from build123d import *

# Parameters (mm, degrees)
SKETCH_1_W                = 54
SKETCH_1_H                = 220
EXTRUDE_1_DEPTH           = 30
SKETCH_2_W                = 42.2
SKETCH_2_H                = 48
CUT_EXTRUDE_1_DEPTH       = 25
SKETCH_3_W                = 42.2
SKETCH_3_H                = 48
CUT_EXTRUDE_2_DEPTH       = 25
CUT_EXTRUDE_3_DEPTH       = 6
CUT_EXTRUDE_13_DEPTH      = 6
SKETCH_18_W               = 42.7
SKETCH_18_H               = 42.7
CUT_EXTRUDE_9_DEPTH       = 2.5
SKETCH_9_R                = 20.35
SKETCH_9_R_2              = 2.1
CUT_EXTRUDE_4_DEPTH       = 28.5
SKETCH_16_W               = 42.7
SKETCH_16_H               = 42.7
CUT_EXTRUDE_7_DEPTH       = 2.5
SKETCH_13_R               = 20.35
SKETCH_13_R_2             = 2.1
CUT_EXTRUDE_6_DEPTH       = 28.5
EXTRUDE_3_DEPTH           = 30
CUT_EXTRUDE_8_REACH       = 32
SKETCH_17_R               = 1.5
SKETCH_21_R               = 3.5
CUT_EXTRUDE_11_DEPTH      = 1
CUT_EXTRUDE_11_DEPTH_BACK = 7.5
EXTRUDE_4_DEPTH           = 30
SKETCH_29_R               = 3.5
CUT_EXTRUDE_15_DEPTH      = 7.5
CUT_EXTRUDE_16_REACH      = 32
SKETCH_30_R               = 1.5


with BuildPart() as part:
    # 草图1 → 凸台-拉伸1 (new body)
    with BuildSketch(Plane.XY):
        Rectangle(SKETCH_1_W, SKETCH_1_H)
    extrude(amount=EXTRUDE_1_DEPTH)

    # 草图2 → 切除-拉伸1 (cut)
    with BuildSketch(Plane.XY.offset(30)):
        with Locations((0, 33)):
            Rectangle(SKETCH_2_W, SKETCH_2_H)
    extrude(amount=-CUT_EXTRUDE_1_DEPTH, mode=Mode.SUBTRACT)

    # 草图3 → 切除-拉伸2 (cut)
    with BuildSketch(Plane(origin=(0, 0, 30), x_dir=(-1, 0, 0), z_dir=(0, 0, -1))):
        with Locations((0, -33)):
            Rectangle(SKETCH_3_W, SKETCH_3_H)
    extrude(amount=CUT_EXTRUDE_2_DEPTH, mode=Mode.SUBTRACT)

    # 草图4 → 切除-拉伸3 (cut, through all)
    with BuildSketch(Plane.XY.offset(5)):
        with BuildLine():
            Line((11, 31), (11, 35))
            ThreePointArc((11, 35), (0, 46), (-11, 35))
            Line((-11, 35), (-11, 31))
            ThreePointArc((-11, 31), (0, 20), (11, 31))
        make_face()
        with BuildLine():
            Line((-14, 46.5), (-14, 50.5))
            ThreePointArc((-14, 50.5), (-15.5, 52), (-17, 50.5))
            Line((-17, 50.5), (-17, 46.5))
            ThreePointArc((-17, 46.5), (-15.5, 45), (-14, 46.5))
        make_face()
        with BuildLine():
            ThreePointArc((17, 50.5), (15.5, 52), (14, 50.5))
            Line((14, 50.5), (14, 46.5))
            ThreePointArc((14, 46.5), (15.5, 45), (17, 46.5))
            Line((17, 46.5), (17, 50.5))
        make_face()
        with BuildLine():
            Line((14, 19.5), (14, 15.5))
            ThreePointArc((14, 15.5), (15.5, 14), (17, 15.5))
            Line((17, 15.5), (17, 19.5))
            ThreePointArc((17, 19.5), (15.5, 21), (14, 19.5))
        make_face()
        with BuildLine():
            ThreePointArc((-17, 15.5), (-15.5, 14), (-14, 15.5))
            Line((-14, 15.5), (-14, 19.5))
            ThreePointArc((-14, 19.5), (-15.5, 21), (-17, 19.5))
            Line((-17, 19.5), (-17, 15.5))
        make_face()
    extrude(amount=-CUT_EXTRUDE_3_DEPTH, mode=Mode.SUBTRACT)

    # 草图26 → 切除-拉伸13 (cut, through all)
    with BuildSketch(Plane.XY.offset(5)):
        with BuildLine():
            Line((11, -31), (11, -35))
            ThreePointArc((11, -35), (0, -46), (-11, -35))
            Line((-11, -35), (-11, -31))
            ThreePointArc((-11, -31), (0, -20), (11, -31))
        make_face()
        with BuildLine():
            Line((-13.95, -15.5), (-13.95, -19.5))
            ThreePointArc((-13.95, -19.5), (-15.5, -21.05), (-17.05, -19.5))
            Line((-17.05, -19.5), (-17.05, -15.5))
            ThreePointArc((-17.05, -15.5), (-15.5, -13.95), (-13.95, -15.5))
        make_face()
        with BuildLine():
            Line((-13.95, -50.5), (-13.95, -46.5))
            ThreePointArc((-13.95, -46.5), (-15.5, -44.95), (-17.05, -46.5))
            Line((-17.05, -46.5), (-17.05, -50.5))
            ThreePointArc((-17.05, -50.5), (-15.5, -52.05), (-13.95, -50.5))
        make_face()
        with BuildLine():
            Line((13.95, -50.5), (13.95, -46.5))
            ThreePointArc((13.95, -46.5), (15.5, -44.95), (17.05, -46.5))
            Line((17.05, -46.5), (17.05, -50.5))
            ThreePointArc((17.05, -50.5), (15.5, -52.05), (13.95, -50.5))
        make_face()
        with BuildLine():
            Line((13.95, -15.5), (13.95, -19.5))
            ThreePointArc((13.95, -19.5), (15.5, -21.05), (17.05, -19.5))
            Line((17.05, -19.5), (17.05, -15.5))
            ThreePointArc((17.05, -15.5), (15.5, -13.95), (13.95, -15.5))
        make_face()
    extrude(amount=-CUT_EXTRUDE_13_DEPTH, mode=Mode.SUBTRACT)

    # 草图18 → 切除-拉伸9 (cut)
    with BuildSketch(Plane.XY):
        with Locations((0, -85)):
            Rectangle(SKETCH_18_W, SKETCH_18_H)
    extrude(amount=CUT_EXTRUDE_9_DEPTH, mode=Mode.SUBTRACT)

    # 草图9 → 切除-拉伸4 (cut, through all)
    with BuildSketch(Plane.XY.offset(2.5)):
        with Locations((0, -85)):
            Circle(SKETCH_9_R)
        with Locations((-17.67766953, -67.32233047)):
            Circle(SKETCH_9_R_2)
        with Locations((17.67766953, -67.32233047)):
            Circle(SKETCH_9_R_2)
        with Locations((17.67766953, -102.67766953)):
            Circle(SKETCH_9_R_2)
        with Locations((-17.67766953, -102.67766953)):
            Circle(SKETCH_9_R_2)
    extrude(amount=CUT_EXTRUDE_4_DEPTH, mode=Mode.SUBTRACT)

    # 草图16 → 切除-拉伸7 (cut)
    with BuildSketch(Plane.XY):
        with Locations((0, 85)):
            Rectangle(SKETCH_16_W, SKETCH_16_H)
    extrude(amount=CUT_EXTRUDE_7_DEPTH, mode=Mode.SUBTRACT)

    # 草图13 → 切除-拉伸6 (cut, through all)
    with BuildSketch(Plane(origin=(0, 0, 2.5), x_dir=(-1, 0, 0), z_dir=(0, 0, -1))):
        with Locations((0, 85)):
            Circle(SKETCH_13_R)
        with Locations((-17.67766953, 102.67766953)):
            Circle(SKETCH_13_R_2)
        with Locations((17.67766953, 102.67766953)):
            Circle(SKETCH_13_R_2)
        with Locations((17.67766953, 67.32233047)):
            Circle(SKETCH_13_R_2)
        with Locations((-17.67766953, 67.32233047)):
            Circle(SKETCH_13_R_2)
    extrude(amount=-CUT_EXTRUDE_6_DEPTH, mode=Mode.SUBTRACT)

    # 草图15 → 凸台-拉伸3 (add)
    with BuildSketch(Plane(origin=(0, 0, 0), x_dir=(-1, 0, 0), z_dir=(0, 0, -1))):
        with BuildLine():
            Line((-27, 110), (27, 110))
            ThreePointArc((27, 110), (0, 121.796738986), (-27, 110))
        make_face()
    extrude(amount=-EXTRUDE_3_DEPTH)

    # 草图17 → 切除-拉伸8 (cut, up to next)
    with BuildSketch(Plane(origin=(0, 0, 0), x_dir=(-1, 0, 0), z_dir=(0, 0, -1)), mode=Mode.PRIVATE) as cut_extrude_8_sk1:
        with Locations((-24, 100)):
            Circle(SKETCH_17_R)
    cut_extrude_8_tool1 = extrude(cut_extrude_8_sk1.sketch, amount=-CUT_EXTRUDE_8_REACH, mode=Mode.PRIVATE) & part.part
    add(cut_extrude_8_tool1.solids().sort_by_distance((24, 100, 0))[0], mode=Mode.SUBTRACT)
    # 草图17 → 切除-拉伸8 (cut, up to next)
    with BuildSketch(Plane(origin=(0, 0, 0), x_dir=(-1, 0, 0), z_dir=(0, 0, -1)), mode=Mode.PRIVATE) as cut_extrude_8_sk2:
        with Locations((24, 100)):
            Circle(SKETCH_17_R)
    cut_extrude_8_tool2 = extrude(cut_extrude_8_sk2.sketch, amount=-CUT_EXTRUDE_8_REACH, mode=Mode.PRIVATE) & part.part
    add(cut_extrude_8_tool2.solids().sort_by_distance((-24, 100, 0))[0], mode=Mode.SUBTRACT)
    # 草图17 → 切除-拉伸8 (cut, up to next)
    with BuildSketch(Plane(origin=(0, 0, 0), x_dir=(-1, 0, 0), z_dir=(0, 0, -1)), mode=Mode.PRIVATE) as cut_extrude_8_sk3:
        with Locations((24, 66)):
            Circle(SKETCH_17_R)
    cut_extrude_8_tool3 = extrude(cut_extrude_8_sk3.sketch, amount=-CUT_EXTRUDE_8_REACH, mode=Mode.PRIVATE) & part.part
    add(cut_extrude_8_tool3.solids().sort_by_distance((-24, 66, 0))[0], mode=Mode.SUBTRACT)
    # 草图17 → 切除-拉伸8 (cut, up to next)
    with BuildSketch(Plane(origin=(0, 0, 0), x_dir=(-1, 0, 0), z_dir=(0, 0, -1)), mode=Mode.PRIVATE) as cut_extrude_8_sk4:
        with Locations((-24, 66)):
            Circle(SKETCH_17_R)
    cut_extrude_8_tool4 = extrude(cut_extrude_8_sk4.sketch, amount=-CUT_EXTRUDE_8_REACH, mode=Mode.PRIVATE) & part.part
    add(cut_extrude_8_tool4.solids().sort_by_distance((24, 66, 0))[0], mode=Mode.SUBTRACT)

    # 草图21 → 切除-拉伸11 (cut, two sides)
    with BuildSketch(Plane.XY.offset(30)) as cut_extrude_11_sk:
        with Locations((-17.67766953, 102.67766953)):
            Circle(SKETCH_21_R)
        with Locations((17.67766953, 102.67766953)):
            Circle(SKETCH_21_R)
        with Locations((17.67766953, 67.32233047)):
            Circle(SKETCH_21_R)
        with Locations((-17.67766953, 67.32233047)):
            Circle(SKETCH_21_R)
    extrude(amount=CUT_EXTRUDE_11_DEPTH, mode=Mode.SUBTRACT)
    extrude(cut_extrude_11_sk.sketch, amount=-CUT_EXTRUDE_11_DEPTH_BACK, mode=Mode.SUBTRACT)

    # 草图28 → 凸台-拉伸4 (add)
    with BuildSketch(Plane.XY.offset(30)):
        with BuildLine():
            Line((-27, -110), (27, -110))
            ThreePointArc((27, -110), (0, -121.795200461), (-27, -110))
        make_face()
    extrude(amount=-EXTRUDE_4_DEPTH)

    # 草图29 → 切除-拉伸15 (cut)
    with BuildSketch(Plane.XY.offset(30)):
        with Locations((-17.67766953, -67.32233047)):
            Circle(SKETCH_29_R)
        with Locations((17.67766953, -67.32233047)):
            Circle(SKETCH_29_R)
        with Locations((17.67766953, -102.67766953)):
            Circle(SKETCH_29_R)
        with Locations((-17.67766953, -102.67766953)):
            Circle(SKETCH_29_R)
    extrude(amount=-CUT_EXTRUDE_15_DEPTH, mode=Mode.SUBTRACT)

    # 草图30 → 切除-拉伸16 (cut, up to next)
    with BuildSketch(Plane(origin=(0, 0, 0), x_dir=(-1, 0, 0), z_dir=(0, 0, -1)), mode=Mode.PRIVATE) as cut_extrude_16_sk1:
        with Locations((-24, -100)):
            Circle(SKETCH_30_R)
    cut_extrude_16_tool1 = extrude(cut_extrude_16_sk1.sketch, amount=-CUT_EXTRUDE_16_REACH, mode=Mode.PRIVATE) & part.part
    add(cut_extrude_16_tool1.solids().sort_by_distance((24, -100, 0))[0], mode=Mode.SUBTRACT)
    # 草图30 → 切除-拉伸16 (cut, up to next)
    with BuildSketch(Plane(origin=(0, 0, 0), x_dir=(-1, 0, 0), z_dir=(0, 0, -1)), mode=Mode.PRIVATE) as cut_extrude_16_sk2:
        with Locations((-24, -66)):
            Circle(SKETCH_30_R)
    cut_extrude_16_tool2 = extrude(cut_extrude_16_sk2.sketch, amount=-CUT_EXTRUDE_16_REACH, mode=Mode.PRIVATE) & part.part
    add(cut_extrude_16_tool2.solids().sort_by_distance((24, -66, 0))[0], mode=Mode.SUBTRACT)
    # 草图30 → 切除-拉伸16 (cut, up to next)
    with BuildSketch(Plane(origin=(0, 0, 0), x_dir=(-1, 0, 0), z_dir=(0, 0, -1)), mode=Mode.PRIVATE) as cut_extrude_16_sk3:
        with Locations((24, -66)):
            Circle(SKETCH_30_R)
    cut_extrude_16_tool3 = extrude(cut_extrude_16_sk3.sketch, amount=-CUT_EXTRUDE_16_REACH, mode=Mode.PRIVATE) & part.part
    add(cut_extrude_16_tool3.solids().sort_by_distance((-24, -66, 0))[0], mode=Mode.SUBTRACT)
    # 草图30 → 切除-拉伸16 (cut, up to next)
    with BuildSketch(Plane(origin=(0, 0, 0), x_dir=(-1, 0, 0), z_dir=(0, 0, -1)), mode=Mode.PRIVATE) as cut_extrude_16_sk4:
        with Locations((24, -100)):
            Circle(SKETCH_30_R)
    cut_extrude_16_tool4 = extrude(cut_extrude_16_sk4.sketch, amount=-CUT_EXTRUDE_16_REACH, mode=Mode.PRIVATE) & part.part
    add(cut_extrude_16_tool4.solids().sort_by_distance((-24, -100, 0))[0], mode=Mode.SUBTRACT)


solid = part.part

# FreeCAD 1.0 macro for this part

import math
import FreeCAD as App
import Part
import Sketcher
Q = App.Units.Quantity


def add_polygon(sketch, points):
    """Adds a closed chain of lines whose ends are joined by coincident constraints."""
    first, n = sketch.GeometryCount, len(points)
    for a, b in zip(points, points[1:] + points[:1]):
        sketch.addGeometry(Part.LineSegment(App.Vector(*a, 0), App.Vector(*b, 0)), False)
    for i in range(n):
        sketch.addConstraint(Sketcher.Constraint("Coincident", first + i, 2, first + (i + 1) % n, 1))

doc = App.newDocument("Part")
params = doc.addObject("Spreadsheet::Sheet", "Params")
for row, (alias, value) in enumerate([
    ("sketch1_width", "54 mm"),
    ("sketch1_height", "220 mm"),
    ("pad1_length", "30 mm"),
    ("sketch2_height", "48 mm"),
    ("sketch2_width", "42.2 mm"),
    ("pocket1_length", "25 mm"),
    ("sketch3_height", "48 mm"),
    ("sketch3_width", "42.2 mm"),
    ("pocket2_length", "25 mm"),
    ("sketch4_radius", "11 mm"),
    ("sketch4_radius2", "1.5 mm"),
    ("sketch4_height", "4 mm"),
    ("sketch5_radius", "11 mm"),
    ("sketch5_height", "4 mm"),
    ("sketch5_radius2", "1.55 mm"),
    ("sketch6_width", "42.7 mm"),
    ("pocket5_length", "2.5 mm"),
    ("sketch7_diameter", "40.7 mm"),
    ("sketch7_diameter2", "4.2 mm"),
    ("sketch8_width", "42.7 mm"),
    ("pocket7_length", "2.5 mm"),
    ("sketch9_diameter", "40.7 mm"),
    ("sketch9_diameter2", "4.2 mm"),
    ("sketch10_width", "54 mm"),
    ("pad2_length", "30 mm"),
    ("sketch11_diameter", "3 mm"),
    ("sketch12_diameter", "3 mm"),
    ("sketch13_diameter", "3 mm"),
    ("sketch14_diameter", "3 mm"),
    ("sketch15_diameter", "7 mm"),
    ("pocket13_length", "1 mm"),
    ("pocket13_length2", "7.5 mm"),
    ("sketch16_radius", "36.8 mm"),
    ("sketch16_width", "54 mm"),
    ("pad3_length", "30 mm"),
    ("sketch17_diameter", "7 mm"),
    ("pocket14_length", "7.5 mm"),
    ("sketch18_diameter", "3 mm"),
    ("sketch19_diameter", "3 mm"),
    ("sketch20_diameter", "3 mm"),
    ("sketch21_diameter", "3 mm"),
], start=1):
    params.set(f"A{row}", alias)
    params.set(f"B{row}", "=" + value)
    params.setAlias(f"B{row}", alias)

body = doc.addObject("PartDesign::Body", "Body")

sketch1 = body.newObject("Sketcher::SketchObject", "Sketch")
sketch1.AttachmentSupport = (doc.getObject("XY_Plane"), [""])
sketch1.MapMode = "FlatFace"
add_polygon(sketch1, [(-27, 110), (-27, -110), (27, -110), (27, 110)])
sketch1.addConstraint(Sketcher.Constraint("Vertical", 0))
sketch1.addConstraint(Sketcher.Constraint("Horizontal", 1))
sketch1.addConstraint(Sketcher.Constraint("Vertical", 2))
sketch1.addConstraint(Sketcher.Constraint("Horizontal", 3))
sketch1.addConstraint(Sketcher.Constraint("Symmetric", 0, 2, 2, 2, -1, 1))
sketch1.addConstraint(Sketcher.Constraint("DistanceX", 1, 1, 1, 2, Q("54 mm")))
sketch1.addConstraint(Sketcher.Constraint("DistanceY", 0, 2, 0, 1, Q("220 mm")))
sketch1.setExpression("Constraints[9]", "Params.sketch1_width")
sketch1.setExpression("Constraints[10]", "Params.sketch1_height")
pad1 = body.newObject("PartDesign::Pad", "Pad")
pad1.Profile = sketch1
pad1.setExpression("Length", "Params.pad1_length")

sketch2 = body.newObject("Sketcher::SketchObject", "Sketch001")
sketch2.AttachmentSupport = (doc.getObject("XY_Plane"), [""])
sketch2.MapMode = "FlatFace"
sketch2.AttachmentOffset = App.Placement(App.Vector(0, 0, 30), App.Rotation())
add_polygon(sketch2, [(-21, 57), (-21, 9), (21, 9), (21, 57)])
sketch2.addConstraint(Sketcher.Constraint("Vertical", 0))
sketch2.addConstraint(Sketcher.Constraint("Horizontal", 1))
sketch2.addConstraint(Sketcher.Constraint("Vertical", 2))
sketch2.addConstraint(Sketcher.Constraint("Horizontal", 3))
sketch2.addConstraint(Sketcher.Constraint("DistanceY", 0, 2, 0, 1, Q("48 mm")))
sketch2.addConstraint(Sketcher.Constraint("DistanceX", 1, 1, 1, 2, Q("42.2 mm")))
sketch2.addConstraint(Sketcher.Constraint("DistanceY", -1, 1, 0, 2, Q("9 mm")))
sketch2.addConstraint(Sketcher.Constraint("DistanceX", 0, 2, -1, 1, Q("21.1 mm")))
sketch2.setExpression("Constraints[8]", "Params.sketch2_height")
sketch2.setExpression("Constraints[9]", "Params.sketch2_width")
pocket1 = body.newObject("PartDesign::Pocket", "Pocket")
pocket1.Profile = sketch2
pocket1.setExpression("Length", "Params.pocket1_length")

sketch3 = body.newObject("Sketcher::SketchObject", "Sketch002")
sketch3.AttachmentSupport = (doc.getObject("XY_Plane"), [""])
sketch3.MapMode = "FlatFace"
sketch3.AttachmentOffset = App.Placement(App.Vector(0, 0, 30), App.Rotation())
add_polygon(sketch3, [(21, -9), (21, -57), (-21, -57), (-21, -9)])
sketch3.addConstraint(Sketcher.Constraint("Vertical", 0))
sketch3.addConstraint(Sketcher.Constraint("Horizontal", 1))
sketch3.addConstraint(Sketcher.Constraint("Vertical", 2))
sketch3.addConstraint(Sketcher.Constraint("Horizontal", 3))
sketch3.addConstraint(Sketcher.Constraint("DistanceY", 0, 2, 0, 1, Q("48 mm")))
sketch3.addConstraint(Sketcher.Constraint("DistanceX", 1, 2, 1, 1, Q("42.2 mm")))
sketch3.addConstraint(Sketcher.Constraint("DistanceY", 0, 2, -1, 1, Q("57 mm")))
sketch3.addConstraint(Sketcher.Constraint("DistanceX", -1, 1, 0, 2, Q("21.1 mm")))
sketch3.setExpression("Constraints[8]", "Params.sketch3_height")
sketch3.setExpression("Constraints[9]", "Params.sketch3_width")
pocket2 = body.newObject("PartDesign::Pocket", "Pocket001")
pocket2.Profile = sketch3
pocket2.setExpression("Length", "Params.pocket2_length")

sketch4 = body.newObject("Sketcher::SketchObject", "Sketch003")
sketch4.AttachmentSupport = (doc.getObject("XY_Plane"), [""])
sketch4.MapMode = "FlatFace"
sketch4.AttachmentOffset = App.Placement(App.Vector(0, 0, 5), App.Rotation())
sketch4.addGeometry(Part.LineSegment(App.Vector(11, 31, 0), App.Vector(11, 35, 0)), False)
sketch4.addGeometry(Part.ArcOfCircle(Part.Circle(App.Vector(0, 35, 0), App.Vector(0, 0, 1), 11), math.radians(0), math.radians(180)), False)
sketch4.addGeometry(Part.LineSegment(App.Vector(-11, 35, 0), App.Vector(-11, 31, 0)), False)
sketch4.addGeometry(Part.ArcOfCircle(Part.Circle(App.Vector(0, 31, 0), App.Vector(0, 0, 1), 11), math.radians(180), math.radians(360)), False)
sketch4.addGeometry(Part.LineSegment(App.Vector(-14, 46.5, 0), App.Vector(-14, 50.5, 0)), False)
sketch4.addGeometry(Part.ArcOfCircle(Part.Circle(App.Vector(-15.5, 50.5, 0), App.Vector(0, 0, 1), 1.5), math.radians(0), math.radians(180)), False)
sketch4.addGeometry(Part.LineSegment(App.Vector(-17, 50.5, 0), App.Vector(-17, 46.5, 0)), False)
sketch4.addGeometry(Part.ArcOfCircle(Part.Circle(App.Vector(-15.5, 46.5, 0), App.Vector(0, 0, 1), 1.5), math.radians(180), math.radians(360)), False)
sketch4.addGeometry(Part.ArcOfCircle(Part.Circle(App.Vector(15.5, 50.5, 0), App.Vector(0, 0, 1), 1.5), math.radians(0), math.radians(180)), False)
sketch4.addGeometry(Part.LineSegment(App.Vector(14, 50.5, 0), App.Vector(14, 46.5, 0)), False)
sketch4.addGeometry(Part.ArcOfCircle(Part.Circle(App.Vector(15.5, 46.5, 0), App.Vector(0, 0, 1), 1.5), math.radians(180), math.radians(360)), False)
sketch4.addGeometry(Part.LineSegment(App.Vector(17, 46.5, 0), App.Vector(17, 50.5, 0)), False)
sketch4.addGeometry(Part.LineSegment(App.Vector(14, 19.5, 0), App.Vector(14, 15.5, 0)), False)
sketch4.addGeometry(Part.ArcOfCircle(Part.Circle(App.Vector(15.5, 15.5, 0), App.Vector(0, 0, 1), 1.5), math.radians(180), math.radians(360)), False)
sketch4.addGeometry(Part.LineSegment(App.Vector(17, 15.5, 0), App.Vector(17, 19.5, 0)), False)
sketch4.addGeometry(Part.ArcOfCircle(Part.Circle(App.Vector(15.5, 19.5, 0), App.Vector(0, 0, 1), 1.5), math.radians(0), math.radians(180)), False)
sketch4.addGeometry(Part.ArcOfCircle(Part.Circle(App.Vector(-15.5, 15.5, 0), App.Vector(0, 0, 1), 1.5), math.radians(180), math.radians(360)), False)
sketch4.addGeometry(Part.LineSegment(App.Vector(-14, 15.5, 0), App.Vector(-14, 19.5, 0)), False)
sketch4.addGeometry(Part.ArcOfCircle(Part.Circle(App.Vector(-15.5, 19.5, 0), App.Vector(0, 0, 1), 1.5), math.radians(0), math.radians(180)), False)
sketch4.addGeometry(Part.LineSegment(App.Vector(-17, 19.5, 0), App.Vector(-17, 15.5, 0)), False)
sketch4.addConstraint(Sketcher.Constraint("Tangent", 0, 2, 1, 1))
sketch4.addConstraint(Sketcher.Constraint("Tangent", 1, 2, 2, 1))
sketch4.addConstraint(Sketcher.Constraint("Tangent", 2, 2, 3, 1))
sketch4.addConstraint(Sketcher.Constraint("Tangent", 3, 2, 0, 1))
sketch4.addConstraint(Sketcher.Constraint("Tangent", 4, 2, 5, 1))
sketch4.addConstraint(Sketcher.Constraint("Tangent", 5, 2, 6, 1))
sketch4.addConstraint(Sketcher.Constraint("Tangent", 6, 2, 7, 1))
sketch4.addConstraint(Sketcher.Constraint("Tangent", 7, 2, 4, 1))
sketch4.addConstraint(Sketcher.Constraint("Tangent", 8, 2, 9, 1))
sketch4.addConstraint(Sketcher.Constraint("Tangent", 9, 2, 10, 1))
sketch4.addConstraint(Sketcher.Constraint("Tangent", 10, 2, 11, 1))
sketch4.addConstraint(Sketcher.Constraint("Tangent", 11, 2, 8, 1))
sketch4.addConstraint(Sketcher.Constraint("Tangent", 12, 2, 13, 1))
sketch4.addConstraint(Sketcher.Constraint("Tangent", 13, 2, 14, 1))
sketch4.addConstraint(Sketcher.Constraint("Tangent", 14, 2, 15, 1))
sketch4.addConstraint(Sketcher.Constraint("Tangent", 15, 2, 12, 1))
sketch4.addConstraint(Sketcher.Constraint("Tangent", 16, 2, 17, 1))
sketch4.addConstraint(Sketcher.Constraint("Tangent", 17, 2, 18, 1))
sketch4.addConstraint(Sketcher.Constraint("Tangent", 18, 2, 19, 1))
sketch4.addConstraint(Sketcher.Constraint("Tangent", 19, 2, 16, 1))
sketch4.addConstraint(Sketcher.Constraint("Vertical", 0))
sketch4.addConstraint(Sketcher.Constraint("Vertical", 2))
sketch4.addConstraint(Sketcher.Constraint("Vertical", 4))
sketch4.addConstraint(Sketcher.Constraint("Vertical", 6))
sketch4.addConstraint(Sketcher.Constraint("Vertical", 9))
sketch4.addConstraint(Sketcher.Constraint("Vertical", 11))
sketch4.addConstraint(Sketcher.Constraint("Vertical", 12))
sketch4.addConstraint(Sketcher.Constraint("Vertical", 14))
sketch4.addConstraint(Sketcher.Constraint("Vertical", 17))
sketch4.addConstraint(Sketcher.Constraint("Vertical", 19))
sketch4.addConstraint(Sketcher.Constraint("Equal", 7, 8))
sketch4.addConstraint(Sketcher.Constraint("Equal", 10, 13))
sketch4.addConstraint(Sketcher.Constraint("Equal", 15, 16))
sketch4.addConstraint(Sketcher.Constraint("Symmetric", 5, 3, 8, 3, -2))
sketch4.addConstraint(Sketcher.Constraint("Symmetric", 13, 3, 16, 3, -2))
sketch4.addConstraint(Sketcher.Constraint("PointOnObject", 1, 3, -2))
sketch4.addConstraint(Sketcher.Constraint("Horizontal", 7, 3, 10, 3))
sketch4.addConstraint(Sketcher.Constraint("Horizontal", 15, 3, 18, 3))
sketch4.addConstraint(Sketcher.Constraint("Vertical", 10, 3, 13, 3))
sketch4.addConstraint(Sketcher.Constraint("Equal", 2, 4))
sketch4.addConstraint(Sketcher.Constraint("Equal", 11, 12))
sketch4.addConstraint(Sketcher.Constraint("Radius", 1, Q("11 mm")))
sketch4.addConstraint(Sketcher.Constraint("Radius", 5, Q("1.5 mm")))
sketch4.addConstraint(Sketcher.Constraint("DistanceY", 0, 1, 0, 2, Q("4 mm")))
sketch4.addConstraint(Sketcher.Constraint("DistanceY", -1, 1, 1, 3, Q("35 mm")))
sketch4.addConstraint(Sketcher.Constraint("DistanceX", 4, 2, -1, 1, Q("14 mm")))
sketch4.addConstraint(Sketcher.Constraint("DistanceY", 13, 3, 10, 3, Q("31 mm")))
sketch4.addConstraint(Sketcher.Constraint("DistanceY", -1, 1, 5, 3, Q("50.5 mm")))
sketch4.setExpression("Constraints[41]", "Params.sketch4_radius")
sketch4.setExpression("Constraints[42]", "Params.sketch4_radius2")
sketch4.setExpression("Constraints[43]", "Params.sketch4_height")
pocket3 = body.newObject("PartDesign::Pocket", "Pocket002")
pocket3.Profile = sketch4
pocket3.Type = "ThroughAll"

sketch5 = body.newObject("Sketcher::SketchObject", "Sketch004")
sketch5.AttachmentSupport = (doc.getObject("XY_Plane"), [""])
sketch5.MapMode = "FlatFace"
sketch5.AttachmentOffset = App.Placement(App.Vector(0, 0, 5), App.Rotation())
sketch5.addGeometry(Part.LineSegment(App.Vector(11, -35, 0), App.Vector(11, -31, 0)), False)
sketch5.addGeometry(Part.ArcOfCircle(Part.Circle(App.Vector(0, -31, 0), App.Vector(0, 0, 1), 11), math.radians(0), math.radians(180)), False)
sketch5.addGeometry(Part.LineSegment(App.Vector(-11, -31, 0), App.Vector(-11, -35, 0)), False)
sketch5.addGeometry(Part.ArcOfCircle(Part.Circle(App.Vector(0, -35, 0), App.Vector(0, 0, 1), 11), math.radians(180), math.radians(360)), False)
sketch5.addGeometry(Part.LineSegment(App.Vector(-13.9, -19.5, 0), App.Vector(-13.9, -15.5, 0)), False)
sketch5.addGeometry(Part.ArcOfCircle(Part.Circle(App.Vector(-15.5, -15.5, 0), App.Vector(0, 0, 1), 1.6), math.radians(0), math.radians(180)), False)
sketch5.addGeometry(Part.LineSegment(App.Vector(-17.1, -15.5, 0), App.Vector(-17.1, -19.5, 0)), False)
sketch5.addGeometry(Part.ArcOfCircle(Part.Circle(App.Vector(-15.5, -19.5, 0), App.Vector(0, 0, 1), 1.6), math.radians(180), math.radians(360)), False)
sketch5.addGeometry(Part.LineSegment(App.Vector(-13.9, -50.5, 0), App.Vector(-13.9, -46.5, 0)), False)
sketch5.addGeometry(Part.ArcOfCircle(Part.Circle(App.Vector(-15.5, -46.5, 0), App.Vector(0, 0, 1), 1.6), math.radians(0), math.radians(180)), False)
sketch5.addGeometry(Part.LineSegment(App.Vector(-17.1, -46.5, 0), App.Vector(-17.1, -50.5, 0)), False)
sketch5.addGeometry(Part.ArcOfCircle(Part.Circle(App.Vector(-15.5, -50.5, 0), App.Vector(0, 0, 1), 1.6), math.radians(180), math.radians(360)), False)
sketch5.addGeometry(Part.LineSegment(App.Vector(13.9, -46.5, 0), App.Vector(13.9, -50.5, 0)), False)
sketch5.addGeometry(Part.ArcOfCircle(Part.Circle(App.Vector(15.5, -50.5, 0), App.Vector(0, 0, 1), 1.6), math.radians(180), math.radians(360)), False)
sketch5.addGeometry(Part.LineSegment(App.Vector(17.1, -50.5, 0), App.Vector(17.1, -46.5, 0)), False)
sketch5.addGeometry(Part.ArcOfCircle(Part.Circle(App.Vector(15.5, -46.5, 0), App.Vector(0, 0, 1), 1.6), math.radians(0), math.radians(180)), False)
sketch5.addGeometry(Part.LineSegment(App.Vector(13.9, -15.5, 0), App.Vector(13.9, -19.5, 0)), False)
sketch5.addGeometry(Part.ArcOfCircle(Part.Circle(App.Vector(15.5, -19.5, 0), App.Vector(0, 0, 1), 1.6), math.radians(180), math.radians(360)), False)
sketch5.addGeometry(Part.LineSegment(App.Vector(17.1, -19.5, 0), App.Vector(17.1, -15.5, 0)), False)
sketch5.addGeometry(Part.ArcOfCircle(Part.Circle(App.Vector(15.5, -15.5, 0), App.Vector(0, 0, 1), 1.6), math.radians(0), math.radians(180)), False)
sketch5.addConstraint(Sketcher.Constraint("Tangent", 0, 2, 1, 1))
sketch5.addConstraint(Sketcher.Constraint("Tangent", 1, 2, 2, 1))
sketch5.addConstraint(Sketcher.Constraint("Tangent", 2, 2, 3, 1))
sketch5.addConstraint(Sketcher.Constraint("Tangent", 3, 2, 0, 1))
sketch5.addConstraint(Sketcher.Constraint("Tangent", 4, 2, 5, 1))
sketch5.addConstraint(Sketcher.Constraint("Tangent", 5, 2, 6, 1))
sketch5.addConstraint(Sketcher.Constraint("Tangent", 6, 2, 7, 1))
sketch5.addConstraint(Sketcher.Constraint("Tangent", 7, 2, 4, 1))
sketch5.addConstraint(Sketcher.Constraint("Tangent", 8, 2, 9, 1))
sketch5.addConstraint(Sketcher.Constraint("Tangent", 9, 2, 10, 1))
sketch5.addConstraint(Sketcher.Constraint("Tangent", 10, 2, 11, 1))
sketch5.addConstraint(Sketcher.Constraint("Tangent", 11, 2, 8, 1))
sketch5.addConstraint(Sketcher.Constraint("Tangent", 12, 2, 13, 1))
sketch5.addConstraint(Sketcher.Constraint("Tangent", 13, 2, 14, 1))
sketch5.addConstraint(Sketcher.Constraint("Tangent", 14, 2, 15, 1))
sketch5.addConstraint(Sketcher.Constraint("Tangent", 15, 2, 12, 1))
sketch5.addConstraint(Sketcher.Constraint("Tangent", 16, 2, 17, 1))
sketch5.addConstraint(Sketcher.Constraint("Tangent", 17, 2, 18, 1))
sketch5.addConstraint(Sketcher.Constraint("Tangent", 18, 2, 19, 1))
sketch5.addConstraint(Sketcher.Constraint("Tangent", 19, 2, 16, 1))
sketch5.addConstraint(Sketcher.Constraint("Vertical", 0))
sketch5.addConstraint(Sketcher.Constraint("Vertical", 2))
sketch5.addConstraint(Sketcher.Constraint("Vertical", 4))
sketch5.addConstraint(Sketcher.Constraint("Vertical", 6))
sketch5.addConstraint(Sketcher.Constraint("Vertical", 8))
sketch5.addConstraint(Sketcher.Constraint("Vertical", 10))
sketch5.addConstraint(Sketcher.Constraint("Vertical", 12))
sketch5.addConstraint(Sketcher.Constraint("Vertical", 14))
sketch5.addConstraint(Sketcher.Constraint("Vertical", 16))
sketch5.addConstraint(Sketcher.Constraint("Vertical", 18))
sketch5.addConstraint(Sketcher.Constraint("Equal", 7, 9))
sketch5.addConstraint(Sketcher.Constraint("Equal", 11, 13))
sketch5.addConstraint(Sketcher.Constraint("Equal", 15, 17))
sketch5.addConstraint(Sketcher.Constraint("Symmetric", 11, 3, 13, 3, -2))
sketch5.addConstraint(Sketcher.Constraint("Symmetric", 7, 3, 17, 3, -2))
sketch5.addConstraint(Sketcher.Constraint("PointOnObject", 1, 3, -2))
sketch5.addConstraint(Sketcher.Constraint("Horizontal", 9, 3, 15, 3))
sketch5.addConstraint(Sketcher.Constraint("Horizontal", 5, 3, 19, 3))
sketch5.addConstraint(Sketcher.Constraint("Vertical", 7, 3, 9, 3))
sketch5.addConstraint(Sketcher.Constraint("Equal", 2, 4))
sketch5.addConstraint(Sketcher.Constraint("Equal", 6, 8))
sketch5.addConstraint(Sketcher.Constraint("Radius", 1, Q("11 mm")))
sketch5.addConstraint(Sketcher.Constraint("DistanceY", 0, 1, 0, 2, Q("4 mm")))
sketch5.addConstraint(Sketcher.Constraint("Radius", 5, Q("1.55 mm")))
sketch5.addConstraint(Sketcher.Constraint("DistanceY", 1, 3, -1, 1, Q("31 mm")))
sketch5.addConstraint(Sketcher.Constraint("DistanceY", 9, 3, 7, 3, Q("27 mm")))
sketch5.addConstraint(Sketcher.Constraint("DistanceX", 11, 3, 13, 3, Q("31 mm")))
sketch5.addConstraint(Sketcher.Constraint("DistanceY", 5, 3, -1, 1, Q("15.5 mm")))
sketch5.setExpression("Constraints[41]", "Params.sketch5_radius")
sketch5.setExpression("Constraints[42]", "Params.sketch5_height")
sketch5.setExpression("Constraints[43]", "Params.sketch5_radius2")
pocket4 = body.newObject("PartDesign::Pocket", "Pocket003")
pocket4.Profile = sketch5
pocket4.Type = "ThroughAll"

sketch6 = body.newObject("Sketcher::SketchObject", "Sketch005")
sketch6.AttachmentSupport = (doc.getObject("XY_Plane"), [""])
sketch6.MapMode = "FlatFace"
add_polygon(sketch6, [(-21, -64), (-21, -106), (21, -106), (21, -64)])
sketch6.addConstraint(Sketcher.Constraint("Vertical", 0))
sketch6.addConstraint(Sketcher.Constraint("Horizontal", 1))
sketch6.addConstraint(Sketcher.Constraint("Vertical", 2))
sketch6.addConstraint(Sketcher.Constraint("Horizontal", 3))
sketch6.addConstraint(Sketcher.Constraint("Equal", 3, 0))
sketch6.addConstraint(Sketcher.Constraint("DistanceX", 1, 1, 1, 2, Q("42.7 mm")))
sketch6.addConstraint(Sketcher.Constraint("DistanceX", 0, 2, -1, 1, Q("21.35 mm")))
sketch6.addConstraint(Sketcher.Constraint("DistanceY", 0, 2, -1, 1, Q("106.35 mm")))
sketch6.setExpression("Constraints[9]", "Params.sketch6_width")
pocket5 = body.newObject("PartDesign::Pocket", "Pocket004")
pocket5.Profile = sketch6
pocket5.setExpression("Length", "Params.pocket5_length")
pocket5.Reversed = True

sketch7 = body.newObject("Sketcher::SketchObject", "Sketch006")
sketch7.AttachmentSupport = (doc.getObject("XY_Plane"), [""])
sketch7.MapMode = "FlatFace"
sketch7.AttachmentOffset = App.Placement(App.Vector(0, 0, 2.5), App.Rotation())
sketch7.addGeometry(Part.Circle(App.Vector(0, -85, 0), App.Vector(0, 0, 1), 20.4), False)
sketch7.addGeometry(Part.Circle(App.Vector(-17.7, -67.3, 0), App.Vector(0, 0, 1), 2.1), False)
sketch7.addGeometry(Part.Circle(App.Vector(17.7, -67.3, 0), App.Vector(0, 0, 1), 2.1), False)
sketch7.addGeometry(Part.Circle(App.Vector(17.7, -102.7, 0), App.Vector(0, 0, 1), 2.1), False)
sketch7.addGeometry(Part.Circle(App.Vector(-17.7, -102.7, 0), App.Vector(0, 0, 1), 2.1), False)
sketch7.addConstraint(Sketcher.Constraint("Equal", 1, 2))
sketch7.addConstraint(Sketcher.Constraint("Equal", 2, 3))
sketch7.addConstraint(Sketcher.Constraint("Equal", 3, 4))
sketch7.addConstraint(Sketcher.Constraint("Symmetric", 1, 3, 2, 3, -2))
sketch7.addConstraint(Sketcher.Constraint("Symmetric", 3, 3, 4, 3, -2))
sketch7.addConstraint(Sketcher.Constraint("PointOnObject", 0, 3, -2))
sketch7.addConstraint(Sketcher.Constraint("Vertical", 2, 3, 3, 3))
sketch7.addConstraint(Sketcher.Constraint("Diameter", 0, Q("40.7 mm")))
sketch7.addConstraint(Sketcher.Constraint("Diameter", 1, Q("4.2 mm")))
sketch7.addConstraint(Sketcher.Constraint("DistanceY", 0, 3, -1, 1, Q("85 mm")))
sketch7.addConstraint(Sketcher.Constraint("DistanceX", 1, 3, -1, 1, Q("17.67767 mm")))
sketch7.addConstraint(Sketcher.Constraint("DistanceY", 1, 3, -1, 1, Q("67.32233 mm")))
sketch7.addConstraint(Sketcher.Constraint("DistanceY", 3, 3, -1, 1, Q("102.67767 mm")))
sketch7.setExpression("Constraints[7]", "Params.sketch7_diameter")
sketch7.setExpression("Constraints[8]", "Params.sketch7_diameter2")
pocket6 = body.newObject("PartDesign::Pocket", "Pocket005")
pocket6.Profile = sketch7
pocket6.Type = "ThroughAll"
pocket6.Reversed = True

sketch8 = body.newObject("Sketcher::SketchObject", "Sketch007")
sketch8.AttachmentSupport = (doc.getObject("XY_Plane"), [""])
sketch8.MapMode = "FlatFace"
add_polygon(sketch8, [(-21, 106), (-21, 64), (21, 64), (21, 106)])
sketch8.addConstraint(Sketcher.Constraint("Vertical", 0))
sketch8.addConstraint(Sketcher.Constraint("Horizontal", 1))
sketch8.addConstraint(Sketcher.Constraint("Vertical", 2))
sketch8.addConstraint(Sketcher.Constraint("Horizontal", 3))
sketch8.addConstraint(Sketcher.Constraint("Equal", 3, 0))
sketch8.addConstraint(Sketcher.Constraint("DistanceX", 1, 1, 1, 2, Q("42.7 mm")))
sketch8.addConstraint(Sketcher.Constraint("DistanceX", 0, 2, -1, 1, Q("21.35 mm")))
sketch8.addConstraint(Sketcher.Constraint("DistanceY", -1, 1, 0, 2, Q("63.65 mm")))
sketch8.setExpression("Constraints[9]", "Params.sketch8_width")
pocket7 = body.newObject("PartDesign::Pocket", "Pocket006")
pocket7.Profile = sketch8
pocket7.setExpression("Length", "Params.pocket7_length")
pocket7.Reversed = True

sketch9 = body.newObject("Sketcher::SketchObject", "Sketch008")
sketch9.AttachmentSupport = (doc.getObject("XY_Plane"), [""])
sketch9.MapMode = "FlatFace"
sketch9.AttachmentOffset = App.Placement(App.Vector(0, 0, 2.5), App.Rotation())
sketch9.addGeometry(Part.Circle(App.Vector(0, 85, 0), App.Vector(0, 0, 1), 20.4), False)
sketch9.addGeometry(Part.Circle(App.Vector(17.7, 102.7, 0), App.Vector(0, 0, 1), 2.1), False)
sketch9.addGeometry(Part.Circle(App.Vector(-17.7, 102.7, 0), App.Vector(0, 0, 1), 2.1), False)
sketch9.addGeometry(Part.Circle(App.Vector(-17.7, 67.3, 0), App.Vector(0, 0, 1), 2.1), False)
sketch9.addGeometry(Part.Circle(App.Vector(17.7, 67.3, 0), App.Vector(0, 0, 1), 2.1), False)
sketch9.addConstraint(Sketcher.Constraint("Equal", 1, 2))
sketch9.addConstraint(Sketcher.Constraint("Equal", 2, 3))
sketch9.addConstraint(Sketcher.Constraint("Equal", 3, 4))
sketch9.addConstraint(Sketcher.Constraint("Symmetric", 1, 3, 2, 3, -2))
sketch9.addConstraint(Sketcher.Constraint("Symmetric", 3, 3, 4, 3, -2))
sketch9.addConstraint(Sketcher.Constraint("PointOnObject", 0, 3, -2))
sketch9.addConstraint(Sketcher.Constraint("Vertical", 2, 3, 3, 3))
sketch9.addConstraint(Sketcher.Constraint("Diameter", 0, Q("40.7 mm")))
sketch9.addConstraint(Sketcher.Constraint("Diameter", 1, Q("4.2 mm")))
sketch9.addConstraint(Sketcher.Constraint("DistanceY", -1, 1, 0, 3, Q("85 mm")))
sketch9.addConstraint(Sketcher.Constraint("DistanceX", -1, 1, 1, 3, Q("17.67767 mm")))
sketch9.addConstraint(Sketcher.Constraint("DistanceY", -1, 1, 1, 3, Q("102.67767 mm")))
sketch9.addConstraint(Sketcher.Constraint("DistanceY", -1, 1, 3, 3, Q("67.32233 mm")))
sketch9.setExpression("Constraints[7]", "Params.sketch9_diameter")
sketch9.setExpression("Constraints[8]", "Params.sketch9_diameter2")
pocket8 = body.newObject("PartDesign::Pocket", "Pocket007")
pocket8.Profile = sketch9
pocket8.Type = "ThroughAll"
pocket8.Reversed = True

sketch10 = body.newObject("Sketcher::SketchObject", "Sketch009")
sketch10.AttachmentSupport = (doc.getObject("XY_Plane"), [""])
sketch10.MapMode = "FlatFace"
sketch10.addGeometry(Part.LineSegment(App.Vector(27, 110, 0), App.Vector(-27, 110, 0)), False)
sketch10.addGeometry(Part.ArcOfCircle(Part.Circle(App.Vector(0, 85, 0), App.Vector(0, 0, 1), 37), math.radians(43), math.radians(137)), False)
sketch10.addConstraint(Sketcher.Constraint("Coincident", 0, 1, 1, 1))
sketch10.addConstraint(Sketcher.Constraint("Coincident", 1, 2, 0, 2))
sketch10.addConstraint(Sketcher.Constraint("Horizontal", 0))
sketch10.addConstraint(Sketcher.Constraint("PointOnObject", 1, 3, -2))
sketch10.addConstraint(Sketcher.Constraint("DistanceX", 0, 2, 0, 1, Q("54 mm")))
sketch10.addConstraint(Sketcher.Constraint("DistanceY", -1, 1, 1, 3, Q("85 mm")))
sketch10.addConstraint(Sketcher.Constraint("DistanceY", -1, 1, 0, 1, Q("110 mm")))
sketch10.setExpression("Constraints[4]", "Params.sketch10_width")
pad2 = body.newObject("PartDesign::Pad", "Pad001")
pad2.Profile = sketch10
pad2.setExpression("Length", "Params.pad2_length")

sketch11 = body.newObject("Sketcher::SketchObject", "Sketch010")
sketch11.AttachmentSupport = (doc.getObject("XY_Plane"), [""])
sketch11.MapMode = "FlatFace"
sketch11.addGeometry(Part.Circle(App.Vector(24, 100, 0), App.Vector(0, 0, 1), 1.5), False)
sketch11.addConstraint(Sketcher.Constraint("Diameter", 0, Q("3 mm")))
sketch11.addConstraint(Sketcher.Constraint("DistanceX", -1, 1, 0, 3, Q("24 mm")))
sketch11.addConstraint(Sketcher.Constraint("DistanceY", -1, 1, 0, 3, Q("100 mm")))
sketch11.setExpression("Constraints[0]", "Params.sketch11_diameter")
pocket9 = body.newObject("PartDesign::Pocket", "Pocket008")
pocket9.Profile = sketch11
pocket9.Type = "UpToFirst"
pocket9.Reversed = True

sketch12 = body.newObject("Sketcher::SketchObject", "Sketch011")
sketch12.AttachmentSupport = (doc.getObject("XY_Plane"), [""])
sketch12.MapMode = "FlatFace"
sketch12.addGeometry(Part.Circle(App.Vector(-24, 100, 0), App.Vector(0, 0, 1), 1.5), False)
sketch12.addConstraint(Sketcher.Constraint("Diameter", 0, Q("3 mm")))
sketch12.addConstraint(Sketcher.Constraint("DistanceX", 0, 3, -1, 1, Q("24 mm")))
sketch12.addConstraint(Sketcher.Constraint("DistanceY", -1, 1, 0, 3, Q("100 mm")))
sketch12.setExpression("Constraints[0]", "Params.sketch12_diameter")
pocket10 = body.newObject("PartDesign::Pocket", "Pocket009")
pocket10.Profile = sketch12
pocket10.Type = "UpToFirst"
pocket10.Reversed = True

sketch13 = body.newObject("Sketcher::SketchObject", "Sketch012")
sketch13.AttachmentSupport = (doc.getObject("XY_Plane"), [""])
sketch13.MapMode = "FlatFace"
sketch13.addGeometry(Part.Circle(App.Vector(-24, 66, 0), App.Vector(0, 0, 1), 1.5), False)
sketch13.addConstraint(Sketcher.Constraint("Diameter", 0, Q("3 mm")))
sketch13.addConstraint(Sketcher.Constraint("DistanceX", 0, 3, -1, 1, Q("24 mm")))
sketch13.addConstraint(Sketcher.Constraint("DistanceY", -1, 1, 0, 3, Q("66 mm")))
sketch13.setExpression("Constraints[0]", "Params.sketch13_diameter")
pocket11 = body.newObject("PartDesign::Pocket", "Pocket010")
pocket11.Profile = sketch13
pocket11.Type = "UpToFirst"
pocket11.Reversed = True

sketch14 = body.newObject("Sketcher::SketchObject", "Sketch013")
sketch14.AttachmentSupport = (doc.getObject("XY_Plane"), [""])
sketch14.MapMode = "FlatFace"
sketch14.addGeometry(Part.Circle(App.Vector(24, 66, 0), App.Vector(0, 0, 1), 1.5), False)
sketch14.addConstraint(Sketcher.Constraint("Diameter", 0, Q("3 mm")))
sketch14.addConstraint(Sketcher.Constraint("DistanceX", -1, 1, 0, 3, Q("24 mm")))
sketch14.addConstraint(Sketcher.Constraint("DistanceY", -1, 1, 0, 3, Q("66 mm")))
sketch14.setExpression("Constraints[0]", "Params.sketch14_diameter")
pocket12 = body.newObject("PartDesign::Pocket", "Pocket011")
pocket12.Profile = sketch14
pocket12.Type = "UpToFirst"
pocket12.Reversed = True

sketch15 = body.newObject("Sketcher::SketchObject", "Sketch014")
sketch15.AttachmentSupport = (doc.getObject("XY_Plane"), [""])
sketch15.MapMode = "FlatFace"
sketch15.AttachmentOffset = App.Placement(App.Vector(0, 0, 30), App.Rotation())
sketch15.addGeometry(Part.Circle(App.Vector(-17.7, 102.7, 0), App.Vector(0, 0, 1), 3.5), False)
sketch15.addGeometry(Part.Circle(App.Vector(17.7, 102.7, 0), App.Vector(0, 0, 1), 3.5), False)
sketch15.addGeometry(Part.Circle(App.Vector(17.7, 67.3, 0), App.Vector(0, 0, 1), 3.5), False)
sketch15.addGeometry(Part.Circle(App.Vector(-17.7, 67.3, 0), App.Vector(0, 0, 1), 3.5), False)
sketch15.addConstraint(Sketcher.Constraint("Equal", 0, 1))
sketch15.addConstraint(Sketcher.Constraint("Equal", 1, 2))
sketch15.addConstraint(Sketcher.Constraint("Equal", 2, 3))
sketch15.addConstraint(Sketcher.Constraint("Symmetric", 0, 3, 1, 3, -2))
sketch15.addConstraint(Sketcher.Constraint("Symmetric", 2, 3, 3, 3, -2))
sketch15.addConstraint(Sketcher.Constraint("Vertical", 1, 3, 2, 3))
sketch15.addConstraint(Sketcher.Constraint("Diameter", 0, Q("7 mm")))
sketch15.addConstraint(Sketcher.Constraint("DistanceX", 0, 3, -1, 1, Q("17.67767 mm")))
sketch15.addConstraint(Sketcher.Constraint("DistanceY", -1, 1, 0, 3, Q("102.67767 mm")))
sketch15.addConstraint(Sketcher.Constraint("DistanceY", -1, 1, 2, 3, Q("67.32233 mm")))
sketch15.setExpression("Constraints[6]", "Params.sketch15_diameter")
pocket13 = body.newObject("PartDesign::Pocket", "Pocket012")
pocket13.Profile = sketch15
pocket13.Type = "TwoLengths"
pocket13.setExpression("Length", "Params.pocket13_length")
pocket13.setExpression("Length2", "Params.pocket13_length2")
pocket13.Reversed = True

sketch16 = body.newObject("Sketcher::SketchObject", "Sketch015")
sketch16.AttachmentSupport = (doc.getObject("XY_Plane"), [""])
sketch16.MapMode = "FlatFace"
sketch16.AttachmentOffset = App.Placement(App.Vector(0, 0, 30), App.Rotation())
sketch16.addGeometry(Part.LineSegment(App.Vector(27, -110, 0), App.Vector(-27, -110, 0)), False)
sketch16.addGeometry(Part.ArcOfCircle(Part.Circle(App.Vector(0, -85, 0), App.Vector(0, 0, 1), 37), math.radians(-137), math.radians(-43)), False)
sketch16.addConstraint(Sketcher.Constraint("Coincident", 0, 1, 1, 2))
sketch16.addConstraint(Sketcher.Constraint("Coincident", 1, 1, 0, 2))
sketch16.addConstraint(Sketcher.Constraint("Horizontal", 0))
sketch16.addConstraint(Sketcher.Constraint("PointOnObject", 1, 3, -2))
sketch16.addConstraint(Sketcher.Constraint("Radius", 1, Q("36.8 mm")))
sketch16.addConstraint(Sketcher.Constraint("DistanceX", 0, 2, 0, 1, Q("54 mm")))
sketch16.addConstraint(Sketcher.Constraint("DistanceY", 0, 1, -1, 1, Q("110 mm")))
sketch16.setExpression("Constraints[4]", "Params.sketch16_radius")
sketch16.setExpression("Constraints[5]", "Params.sketch16_width")
pad3 = body.newObject("PartDesign::Pad", "Pad002")
pad3.Profile = sketch16
pad3.setExpression("Length", "Params.pad3_length")
pad3.Reversed = True

sketch17 = body.newObject("Sketcher::SketchObject", "Sketch016")
sketch17.AttachmentSupport = (doc.getObject("XY_Plane"), [""])
sketch17.MapMode = "FlatFace"
sketch17.AttachmentOffset = App.Placement(App.Vector(0, 0, 30), App.Rotation())
sketch17.addGeometry(Part.Circle(App.Vector(-17.7, -67.3, 0), App.Vector(0, 0, 1), 3.5), False)
sketch17.addGeometry(Part.Circle(App.Vector(17.7, -67.3, 0), App.Vector(0, 0, 1), 3.5), False)
sketch17.addGeometry(Part.Circle(App.Vector(17.7, -102.7, 0), App.Vector(0, 0, 1), 3.5), False)
sketch17.addGeometry(Part.Circle(App.Vector(-17.7, -102.7, 0), App.Vector(0, 0, 1), 3.5), False)
sketch17.addConstraint(Sketcher.Constraint("Equal", 0, 1))
sketch17.addConstraint(Sketcher.Constraint("Equal", 1, 2))
sketch17.addConstraint(Sketcher.Constraint("Equal", 2, 3))
sketch17.addConstraint(Sketcher.Constraint("Symmetric", 0, 3, 1, 3, -2))
sketch17.addConstraint(Sketcher.Constraint("Symmetric", 2, 3, 3, 3, -2))
sketch17.addConstraint(Sketcher.Constraint("Vertical", 1, 3, 2, 3))
sketch17.addConstraint(Sketcher.Constraint("Diameter", 0, Q("7 mm")))
sketch17.addConstraint(Sketcher.Constraint("DistanceX", 0, 3, -1, 1, Q("17.67767 mm")))
sketch17.addConstraint(Sketcher.Constraint("DistanceY", 0, 3, -1, 1, Q("67.32233 mm")))
sketch17.addConstraint(Sketcher.Constraint("DistanceY", 2, 3, -1, 1, Q("102.67767 mm")))
sketch17.setExpression("Constraints[6]", "Params.sketch17_diameter")
pocket14 = body.newObject("PartDesign::Pocket", "Pocket013")
pocket14.Profile = sketch17
pocket14.setExpression("Length", "Params.pocket14_length")

sketch18 = body.newObject("Sketcher::SketchObject", "Sketch017")
sketch18.AttachmentSupport = (doc.getObject("XY_Plane"), [""])
sketch18.MapMode = "FlatFace"
sketch18.addGeometry(Part.Circle(App.Vector(24, -100, 0), App.Vector(0, 0, 1), 1.5), False)
sketch18.addConstraint(Sketcher.Constraint("Diameter", 0, Q("3 mm")))
sketch18.addConstraint(Sketcher.Constraint("DistanceX", -1, 1, 0, 3, Q("24 mm")))
sketch18.addConstraint(Sketcher.Constraint("DistanceY", 0, 3, -1, 1, Q("100 mm")))
sketch18.setExpression("Constraints[0]", "Params.sketch18_diameter")
pocket15 = body.newObject("PartDesign::Pocket", "Pocket014")
pocket15.Profile = sketch18
pocket15.Type = "UpToFirst"
pocket15.Reversed = True

sketch19 = body.newObject("Sketcher::SketchObject", "Sketch018")
sketch19.AttachmentSupport = (doc.getObject("XY_Plane"), [""])
sketch19.MapMode = "FlatFace"
sketch19.addGeometry(Part.Circle(App.Vector(24, -66, 0), App.Vector(0, 0, 1), 1.5), False)
sketch19.addConstraint(Sketcher.Constraint("Diameter", 0, Q("3 mm")))
sketch19.addConstraint(Sketcher.Constraint("DistanceX", -1, 1, 0, 3, Q("24 mm")))
sketch19.addConstraint(Sketcher.Constraint("DistanceY", 0, 3, -1, 1, Q("66 mm")))
sketch19.setExpression("Constraints[0]", "Params.sketch19_diameter")
pocket16 = body.newObject("PartDesign::Pocket", "Pocket015")
pocket16.Profile = sketch19
pocket16.Type = "UpToFirst"
pocket16.Reversed = True

sketch20 = body.newObject("Sketcher::SketchObject", "Sketch019")
sketch20.AttachmentSupport = (doc.getObject("XY_Plane"), [""])
sketch20.MapMode = "FlatFace"
sketch20.addGeometry(Part.Circle(App.Vector(-24, -66, 0), App.Vector(0, 0, 1), 1.5), False)
sketch20.addConstraint(Sketcher.Constraint("Diameter", 0, Q("3 mm")))
sketch20.addConstraint(Sketcher.Constraint("DistanceX", 0, 3, -1, 1, Q("24 mm")))
sketch20.addConstraint(Sketcher.Constraint("DistanceY", 0, 3, -1, 1, Q("66 mm")))
sketch20.setExpression("Constraints[0]", "Params.sketch20_diameter")
pocket17 = body.newObject("PartDesign::Pocket", "Pocket016")
pocket17.Profile = sketch20
pocket17.Type = "UpToFirst"
pocket17.Reversed = True

sketch21 = body.newObject("Sketcher::SketchObject", "Sketch020")
sketch21.AttachmentSupport = (doc.getObject("XY_Plane"), [""])
sketch21.MapMode = "FlatFace"
sketch21.addGeometry(Part.Circle(App.Vector(-24, -100, 0), App.Vector(0, 0, 1), 1.5), False)
sketch21.addConstraint(Sketcher.Constraint("Diameter", 0, Q("3 mm")))
sketch21.addConstraint(Sketcher.Constraint("DistanceX", 0, 3, -1, 1, Q("24 mm")))
sketch21.addConstraint(Sketcher.Constraint("DistanceY", 0, 3, -1, 1, Q("100 mm")))
sketch21.setExpression("Constraints[0]", "Params.sketch21_diameter")
pocket18 = body.newObject("PartDesign::Pocket", "Pocket017")
pocket18.Profile = sketch21
pocket18.Type = "UpToFirst"
pocket18.Reversed = True

doc.recompute()
